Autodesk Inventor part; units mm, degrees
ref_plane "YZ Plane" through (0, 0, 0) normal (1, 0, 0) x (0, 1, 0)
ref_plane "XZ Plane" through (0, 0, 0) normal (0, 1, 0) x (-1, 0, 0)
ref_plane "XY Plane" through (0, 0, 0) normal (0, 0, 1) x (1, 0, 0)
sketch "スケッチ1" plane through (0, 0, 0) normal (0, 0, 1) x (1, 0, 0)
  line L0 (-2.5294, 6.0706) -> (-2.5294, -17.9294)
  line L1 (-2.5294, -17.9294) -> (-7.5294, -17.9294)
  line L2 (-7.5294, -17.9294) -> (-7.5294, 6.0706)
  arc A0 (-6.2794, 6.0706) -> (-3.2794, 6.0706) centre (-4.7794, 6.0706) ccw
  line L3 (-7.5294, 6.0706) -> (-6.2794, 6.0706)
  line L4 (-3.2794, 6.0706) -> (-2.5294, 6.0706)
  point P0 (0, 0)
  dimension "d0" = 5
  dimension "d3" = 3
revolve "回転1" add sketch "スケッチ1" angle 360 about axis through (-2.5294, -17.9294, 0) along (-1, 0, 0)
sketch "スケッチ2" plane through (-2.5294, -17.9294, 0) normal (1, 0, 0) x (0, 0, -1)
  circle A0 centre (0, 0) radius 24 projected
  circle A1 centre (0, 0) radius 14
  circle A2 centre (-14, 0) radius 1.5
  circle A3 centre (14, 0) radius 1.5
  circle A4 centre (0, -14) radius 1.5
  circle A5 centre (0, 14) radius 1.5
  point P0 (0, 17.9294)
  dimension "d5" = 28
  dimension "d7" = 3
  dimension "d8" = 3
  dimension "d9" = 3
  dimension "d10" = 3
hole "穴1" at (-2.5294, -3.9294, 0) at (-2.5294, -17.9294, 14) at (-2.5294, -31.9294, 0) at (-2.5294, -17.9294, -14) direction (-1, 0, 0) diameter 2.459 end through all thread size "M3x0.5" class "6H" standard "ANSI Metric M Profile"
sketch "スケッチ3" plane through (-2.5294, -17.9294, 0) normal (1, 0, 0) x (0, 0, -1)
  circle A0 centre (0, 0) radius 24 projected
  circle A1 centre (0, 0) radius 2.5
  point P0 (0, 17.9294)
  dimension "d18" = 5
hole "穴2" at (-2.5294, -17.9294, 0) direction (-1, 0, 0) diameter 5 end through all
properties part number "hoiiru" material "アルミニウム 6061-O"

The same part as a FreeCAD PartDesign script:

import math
import FreeCAD as App
import Part
import Sketcher
from FreeCAD import Vector

doc = App.newDocument("Part")
params = doc.addObject("Spreadsheet::Sheet", "Params")
for row, (alias, value) in enumerate([
    ("sketch1_radius", "1.5 mm"),
    ("sketch1_width", "5 mm"),
    ("sketch1_height", "24 mm"),
    ("sketch1_width2", "0.75 mm"),
    ("revolution_angle", "360 deg"),
    ("hole_diameter", "2.459 mm"),
    ("sketch3_diameter", "5 mm"),
    ("hole2_diameter", "5 mm"),
], start=1):
    params.set(f"A{row}", alias)
    params.set(f"B{row}", "=" + value)
    params.setAlias(f"B{row}", alias)

body = doc.addObject("PartDesign::Body", "Body")

sketch1 = body.newObject("Sketcher::SketchObject", "Sketch")
sketch1.AttachmentSupport = (doc.getObject("XY_Plane"), [""])
sketch1.MapMode = "FlatFace"
sketch1.addGeometry(Part.LineSegment(Vector(-2.5294, -17.9294, 0), Vector(-2.5294, 6.0706, 0)), False)
sketch1.addGeometry(Part.LineSegment(Vector(-2.5294, 6.0706, 0), Vector(-3.2794, 6.0706, 0)), False)
sketch1.addGeometry(Part.ArcOfCircle(Part.Circle(Vector(-4.7794, 6.0706, 0), Vector(0, 0, 1), 1.5), math.radians(180), math.radians(360)), False)
sketch1.addGeometry(Part.LineSegment(Vector(-6.2794, 6.0706, 0), Vector(-7.5294, 6.0706, 0)), False)
sketch1.addGeometry(Part.LineSegment(Vector(-7.5294, 6.0706, 0), Vector(-7.5294, -17.9294, 0)), False)
sketch1.addGeometry(Part.LineSegment(Vector(-7.5294, -17.9294, 0), Vector(-2.5294, -17.9294, 0)), False)
sketch1.addGeometry(Part.LineSegment(Vector(-2.5294, -17.9294, 0), Vector(-7.5294, -17.9294, 0)), True)
sketch1.addConstraint(Sketcher.Constraint("Coincident", 0, 2, 1, 1))
sketch1.addConstraint(Sketcher.Constraint("Coincident", 1, 2, 2, 2))
sketch1.addConstraint(Sketcher.Constraint("Coincident", 2, 1, 3, 1))
sketch1.addConstraint(Sketcher.Constraint("Coincident", 3, 2, 4, 1))
sketch1.addConstraint(Sketcher.Constraint("Coincident", 4, 2, 5, 1))
sketch1.addConstraint(Sketcher.Constraint("Coincident", 5, 2, 0, 1))
sketch1.addConstraint(Sketcher.Constraint("Vertical", 0))
sketch1.addConstraint(Sketcher.Constraint("Horizontal", 1))
sketch1.addConstraint(Sketcher.Constraint("Horizontal", 3))
sketch1.addConstraint(Sketcher.Constraint("Vertical", 4))
sketch1.addConstraint(Sketcher.Constraint("Horizontal", 5))
sketch1.addConstraint(Sketcher.Constraint("Horizontal", 6))
sketch1.addConstraint(Sketcher.Constraint("Coincident", 6, 1, 5, 2))
sketch1.addConstraint(Sketcher.Constraint("Horizontal", 2, 3, 0, 2))
sketch1.addConstraint(Sketcher.Constraint("Horizontal", 1, 2, 2, 1))
sketch1.addConstraint(Sketcher.Constraint("Vertical", 3, 2, 6, 2))
sketch1.addConstraint(Sketcher.Constraint("Radius", 2, 1.5))
sketch1.addConstraint(Sketcher.Constraint("DistanceX", 5, 1, 5, 2, 5.0))
sketch1.addConstraint(Sketcher.Constraint("DistanceY", 0, 1, 0, 2, 24.0))
sketch1.addConstraint(Sketcher.Constraint("DistanceX", 1, 2, 1, 1, 0.75))
sketch1.addConstraint(Sketcher.Constraint("DistanceX", 2, 3, -1, 1, 4.7794))
sketch1.addConstraint(Sketcher.Constraint("DistanceY", -1, 1, 2, 3, 6.0706))
sketch1.setExpression("Constraints[16]", "Params.sketch1_radius")
sketch1.setExpression("Constraints[17]", "Params.sketch1_width")
sketch1.setExpression("Constraints[18]", "Params.sketch1_height")
sketch1.setExpression("Constraints[19]", "Params.sketch1_width2")
revolution = body.newObject("PartDesign::Revolution", "Revolution")
revolution.Profile = sketch1
revolution.ReferenceAxis = (sketch1, ["Axis0"])
revolution.setExpression("Angle", "Params.revolution_angle")

sketch2 = body.newObject("Sketcher::SketchObject", "Sketch001")
sketch2.AttachmentSupport = (doc.getObject("YZ_Plane"), [""])
sketch2.MapMode = "FlatFace"
sketch2.AttachmentOffset = App.Placement(Vector(0, 0, -2.5294), App.Rotation())
sketch2.addGeometry(Part.Circle(Vector(-3.9294, 0, 0), Vector(0, 0, 1), 1.2295), False)
sketch2.addGeometry(Part.Circle(Vector(-17.9294, 14, 0), Vector(0, 0, 1), 1.2295), False)
sketch2.addGeometry(Part.Circle(Vector(-31.9294, 0, 0), Vector(0, 0, 1), 1.2295), False)
sketch2.addGeometry(Part.Circle(Vector(-17.9294, -14, 0), Vector(0, 0, 1), 1.2295), False)
sketch2.addConstraint(Sketcher.Constraint("Equal", 0, 1))
sketch2.addConstraint(Sketcher.Constraint("Equal", 1, 2))
sketch2.addConstraint(Sketcher.Constraint("Equal", 2, 3))
sketch2.addConstraint(Sketcher.Constraint("Symmetric", 1, 3, 3, 3, -1))
sketch2.addConstraint(Sketcher.Constraint("PointOnObject", 0, 3, -1))
sketch2.addConstraint(Sketcher.Constraint("PointOnObject", 2, 3, -1))
sketch2.addConstraint(Sketcher.Constraint("Diameter", 0, 2.459))
sketch2.addConstraint(Sketcher.Constraint("DistanceY", -1, 1, 1, 3, 14.0))
sketch2.addConstraint(Sketcher.Constraint("DistanceX", 1, 3, 0, 3, 14.0))
sketch2.addConstraint(Sketcher.Constraint("DistanceX", 2, 3, 1, 3, 14.0))
sketch2.addConstraint(Sketcher.Constraint("DistanceX", 0, 3, -1, 1, 3.9294))
doc.recompute()
hole = body.newObject("PartDesign::Hole", "Hole")
hole.Profile = sketch2
hole.ThreadType = "None"
hole.setExpression("Diameter", "Params.hole_diameter")
hole.DepthType = "ThroughAll"

sketch3 = body.newObject("Sketcher::SketchObject", "Sketch002")
sketch3.AttachmentSupport = (doc.getObject("YZ_Plane"), [""])
sketch3.MapMode = "FlatFace"
sketch3.AttachmentOffset = App.Placement(Vector(0, 0, -2.5294), App.Rotation())
sketch3.addGeometry(Part.Circle(Vector(-17.9294, 0, 0), Vector(0, 0, 1), 2.5), False)
sketch3.addConstraint(Sketcher.Constraint("PointOnObject", 0, 3, -1))
sketch3.addConstraint(Sketcher.Constraint("Diameter", 0, 5.0))
sketch3.addConstraint(Sketcher.Constraint("DistanceX", 0, 3, -1, 1, 17.9294))
sketch3.setExpression("Constraints[1]", "Params.sketch3_diameter")
doc.recompute()
hole2 = body.newObject("PartDesign::Hole", "Hole001")
hole2.Profile = sketch3
hole2.ThreadType = "None"
hole2.setExpression("Diameter", "Params.hole2_diameter")
hole2.DepthType = "ThroughAll"

doc.recompute()
